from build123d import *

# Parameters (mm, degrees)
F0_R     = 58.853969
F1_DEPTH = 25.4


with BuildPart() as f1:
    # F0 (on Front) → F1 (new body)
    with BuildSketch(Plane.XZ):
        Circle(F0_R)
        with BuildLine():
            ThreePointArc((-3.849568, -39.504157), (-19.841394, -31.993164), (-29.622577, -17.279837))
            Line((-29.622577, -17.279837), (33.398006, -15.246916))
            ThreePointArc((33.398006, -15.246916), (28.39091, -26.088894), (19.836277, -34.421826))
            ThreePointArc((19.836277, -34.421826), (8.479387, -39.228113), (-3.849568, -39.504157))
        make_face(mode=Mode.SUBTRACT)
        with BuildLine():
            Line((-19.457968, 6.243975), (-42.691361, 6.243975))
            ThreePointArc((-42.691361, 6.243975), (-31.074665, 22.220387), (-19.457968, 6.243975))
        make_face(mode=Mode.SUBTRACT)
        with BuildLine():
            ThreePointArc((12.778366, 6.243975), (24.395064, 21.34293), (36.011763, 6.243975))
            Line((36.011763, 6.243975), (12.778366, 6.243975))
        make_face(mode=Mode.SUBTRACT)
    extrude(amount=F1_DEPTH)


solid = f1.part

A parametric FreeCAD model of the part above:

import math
import FreeCAD as App
import Part
import Sketcher

V = App.Vector
Q = App.Units.Quantity

doc = App.newDocument("Part")
body = doc.addObject("PartDesign::Body", "Body")

# Sketch on XZ plane
sketch1 = body.newObject("Sketcher::SketchObject", "Sketch")
sketch1.AttachmentSupport = (doc.getObject("XZ_Plane"), [""])
sketch1.MapMode = "FlatFace"
sketch1.addGeometry([
    Part.Circle(V(0, 0, 0), V(0, 0, 1), 59),  # 0
    Part.ArcOfCircle(Part.Circle(V(2, -7, 0), V(0, 0, 1), 33), math.radians(-100), math.radians(-56)),  # 1
    Part.ArcOfCircle(Part.Circle(V(2, -7, 0), V(0, 0, 1), 33), math.radians(-162), math.radians(-100)),  # 2
    Part.LineSegment(V(-30, -17, 0), V(33, -15, 0)),  # 3
    Part.ArcOfCircle(Part.Circle(V(2, -7, 0), V(0, 0, 1), 33), math.radians(-56), math.radians(-14)),  # 4
    Part.ArcOfCircle(Part.Circle(V(-31, 10, 0), V(0, 0, 1), 12), math.radians(-18), math.radians(198)),  # 5
    Part.LineSegment(V(-19, 6, 0), V(-43, 6, 0)),  # 6
    Part.LineSegment(V(36, 6, 0), V(13, 6, 0)),  # 7
    Part.ArcOfCircle(Part.Circle(V(24, 9, 0), V(0, 0, 1), 12), math.radians(-15), math.radians(195)),  # 8
], False)
sketch1.addConstraint([
    Sketcher.Constraint("Tangent", 1, 1, 2, 2),
    Sketcher.Constraint("Coincident", 2, 1, 3, 1),
    Sketcher.Constraint("Coincident", 3, 2, 4, 2),
    Sketcher.Constraint("Tangent", 4, 1, 1, 2),
    Sketcher.Constraint("Coincident", 5, 1, 6, 1),
    Sketcher.Constraint("Coincident", 6, 2, 5, 2),
    Sketcher.Constraint("Coincident", 7, 1, 8, 1),
    Sketcher.Constraint("Coincident", 8, 2, 7, 2),
    Sketcher.Constraint("Horizontal", 6),
    Sketcher.Constraint("Horizontal", 7),
    Sketcher.Constraint("Coincident", 0, 3, -1, 1),
    Sketcher.Constraint("Equal", 1, 2),
    Sketcher.Constraint("Horizontal", 6, 2, 7, 1),
    Sketcher.Constraint("Radius", 1, 32.8227),
    Sketcher.Constraint("Diameter", 0, 117.707938),
    Sketcher.Constraint("Radius", 4, 32.822685),
    Sketcher.Constraint("Radius", 5, 12.211546),
    Sketcher.Constraint("Radius", 8, 12.018253),
    Sketcher.Constraint("DistanceX", 1, 3, 4, 1, 18.242999),
    Sketcher.Constraint("DistanceX", 8, 3, 7, 1, 11.616699),
    Sketcher.Constraint("DistanceX", 6, 2, 6, 1, 23.233393),
    Sketcher.Constraint("DistanceX", -1, 1, 2, 3, 1.593281),
    Sketcher.Constraint("DistanceY", -1, 1, 5, 3, 10.008841),
    Sketcher.Constraint("DistanceX", 1, 1, -1, 1, 3.849568),
    Sketcher.Constraint("DistanceX", 5, 1, -1, 1, 19.457968),
    Sketcher.Constraint("DistanceY", 2, 3, 5, 3, 17.144728),
    Sketcher.Constraint("DistanceX", 5, 3, 8, 3, 55.469729),
    Sketcher.Constraint("DistanceY", 2, 1, 5, 3, 27.288678),
    Sketcher.Constraint("DistanceX", 8, 3, 3, 2, 9.002942),
])
pad1 = body.newObject("PartDesign::Pad", "Pad")
pad1.Profile = sketch1
pad1.Length = Q("1 in")

doc.recompute()
